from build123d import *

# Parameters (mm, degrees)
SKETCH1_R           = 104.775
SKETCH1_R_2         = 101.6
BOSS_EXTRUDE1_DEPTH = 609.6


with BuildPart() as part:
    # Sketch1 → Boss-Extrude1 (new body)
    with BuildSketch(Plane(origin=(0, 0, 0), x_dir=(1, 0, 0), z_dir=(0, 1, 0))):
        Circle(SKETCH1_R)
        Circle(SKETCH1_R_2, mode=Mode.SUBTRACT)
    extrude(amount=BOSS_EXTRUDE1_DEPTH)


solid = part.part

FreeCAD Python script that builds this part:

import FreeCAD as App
import Part
import Sketcher
from FreeCAD import Vector
Q = App.Units.Quantity

doc = App.newDocument("Part")
body = doc.addObject("PartDesign::Body", "Body")

sketch1 = body.newObject("Sketcher::SketchObject", "Sketch")
sketch1.AttachmentSupport = (doc.getObject("XZ_Plane"), [""])
sketch1.MapMode = "FlatFace"
sketch1.addGeometry([
    Part.Circle(Vector(0, 0, 0), Vector(0, 0, 1), 105),
    Part.Circle(Vector(0, 0, 0), Vector(0, 0, 1), 102),
], False)
sketch1.addConstraint([
    Sketcher.Constraint("Coincident", 0, 3, -1, 1),
    Sketcher.Constraint("Coincident", 1, 3, -1, 1),
    Sketcher.Constraint("Diameter", 1, Q("8 in")),
    Sketcher.Constraint("Diameter", 0, Q("8.25 in")),
])
pad1 = body.newObject("PartDesign::Pad", "Pad")
pad1.Profile = sketch1
pad1.Length = Q("24 in")
pad1.Reversed = True

doc.recompute()
